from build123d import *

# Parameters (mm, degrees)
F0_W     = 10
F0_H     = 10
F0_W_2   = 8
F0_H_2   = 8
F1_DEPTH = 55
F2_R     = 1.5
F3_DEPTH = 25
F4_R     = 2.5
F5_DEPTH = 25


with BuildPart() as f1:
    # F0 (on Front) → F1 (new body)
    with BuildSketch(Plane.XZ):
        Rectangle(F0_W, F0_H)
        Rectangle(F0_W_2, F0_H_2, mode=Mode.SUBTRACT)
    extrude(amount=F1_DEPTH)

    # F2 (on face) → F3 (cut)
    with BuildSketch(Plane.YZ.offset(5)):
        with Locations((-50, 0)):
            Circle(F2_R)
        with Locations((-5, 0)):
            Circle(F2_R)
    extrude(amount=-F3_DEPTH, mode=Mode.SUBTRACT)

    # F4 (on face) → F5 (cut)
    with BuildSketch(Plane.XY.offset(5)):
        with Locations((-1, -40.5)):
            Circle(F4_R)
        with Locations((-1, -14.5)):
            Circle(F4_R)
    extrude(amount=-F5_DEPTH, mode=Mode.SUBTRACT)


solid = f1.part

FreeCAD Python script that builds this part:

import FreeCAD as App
import Part
import Sketcher

V = App.Vector
Q = App.Units.Quantity

doc = App.newDocument("Part")
params = doc.addObject("Spreadsheet::Sheet", "Params")
for row, (alias, value) in enumerate([
    ("sketch1_width", "10 mm"),
    ("sketch1_width2", "8 mm"),
    ("pad1_length", "55 mm"),
    ("sketch2_diameter", "3 mm"),
    ("pocket1_length", "25 mm"),
    ("sketch3_diameter", "5 mm"),
    ("pocket2_length", "25 mm"),
], start=1):
    params.set(f"A{row}", alias)
    params.set(f"B{row}", "=" + value)
    params.setAlias(f"B{row}", alias)

body = doc.addObject("PartDesign::Body", "Body")

# Sketch on XZ plane
sketch1 = body.newObject("Sketcher::SketchObject", "Sketch")
sketch1.AttachmentSupport = (doc.getObject("XZ_Plane"), [""])
sketch1.MapMode = "FlatFace"
sketch1.addGeometry([
    Part.LineSegment(V(-5, 5, 0), V(-5, -5, 0)),  # 0
    Part.LineSegment(V(-5, -5, 0), V(5, -5, 0)),  # 1
    Part.LineSegment(V(5, -5, 0), V(5, 5, 0)),  # 2
    Part.LineSegment(V(5, 5, 0), V(-5, 5, 0)),  # 3
    Part.LineSegment(V(4, -4, 0), V(-4, -4, 0)),  # 4
    Part.LineSegment(V(-4, -4, 0), V(-4, 4, 0)),  # 5
    Part.LineSegment(V(-4, 4, 0), V(4, 4, 0)),  # 6
    Part.LineSegment(V(4, 4, 0), V(4, -4, 0)),  # 7
], False)
sketch1.addConstraint([
    Sketcher.Constraint("Coincident", 0, 2, 1, 1),
    Sketcher.Constraint("Coincident", 1, 2, 2, 1),
    Sketcher.Constraint("Coincident", 2, 2, 3, 1),
    Sketcher.Constraint("Coincident", 3, 2, 0, 1),
    Sketcher.Constraint("Coincident", 4, 2, 5, 1),
    Sketcher.Constraint("Coincident", 5, 2, 6, 1),
    Sketcher.Constraint("Coincident", 6, 2, 7, 1),
    Sketcher.Constraint("Coincident", 7, 2, 4, 1),
    Sketcher.Constraint("Vertical", 0),
    Sketcher.Constraint("Horizontal", 1),
    Sketcher.Constraint("Vertical", 2),
    Sketcher.Constraint("Horizontal", 3),
    Sketcher.Constraint("Horizontal", 4),
    Sketcher.Constraint("Vertical", 5),
    Sketcher.Constraint("Horizontal", 6),
    Sketcher.Constraint("Vertical", 7),
    Sketcher.Constraint("Symmetric", 0, 2, 2, 2, -1, 1),
    Sketcher.Constraint("Symmetric", 4, 2, 6, 2, -1, 1),
    Sketcher.Constraint("Equal", 3, 0),
    Sketcher.Constraint("Equal", 6, 5),
    Sketcher.Constraint("DistanceX", 1, 1, 1, 2, Q("10 mm")),
    Sketcher.Constraint("DistanceX", 4, 2, 4, 1, Q("8 mm")),
])
sketch1.setExpression("Constraints[20]", "Params.sketch1_width")
sketch1.setExpression("Constraints[21]", "Params.sketch1_width2")
pad1 = body.newObject("PartDesign::Pad", "Pad")
pad1.Profile = sketch1
pad1.setExpression("Length", "Params.pad1_length")

# Sketch on YZ plane
sketch2 = body.newObject("Sketcher::SketchObject", "Sketch001")
sketch2.AttachmentSupport = (doc.getObject("YZ_Plane"), [""])
sketch2.MapMode = "FlatFace"
sketch2.AttachmentOffset = App.Placement(V(0, 0, 5), App.Rotation())
sketch2.addGeometry([
    Part.Circle(V(-50, 0, 0), V(0, 0, 1), 1.5),
    Part.Circle(V(-5, 0, 0), V(0, 0, 1), 1.5),
], False)
sketch2.addConstraint([
    Sketcher.Constraint("Equal", 0, 1),
    Sketcher.Constraint("PointOnObject", 0, 3, -1),
    Sketcher.Constraint("PointOnObject", 1, 3, -1),
    Sketcher.Constraint("Diameter", 0, Q("3 mm")),
    Sketcher.Constraint("DistanceX", 0, 3, -1, 1, Q("50 mm")),
    Sketcher.Constraint("DistanceX", 1, 3, -1, 1, Q("5 mm")),
])
sketch2.setExpression("Constraints[3]", "Params.sketch2_diameter")
pocket1 = body.newObject("PartDesign::Pocket", "Pocket")
pocket1.Profile = sketch2
pocket1.setExpression("Length", "Params.pocket1_length")

# Sketch on XY plane
sketch3 = body.newObject("Sketcher::SketchObject", "Sketch002")
sketch3.AttachmentSupport = (doc.getObject("XY_Plane"), [""])
sketch3.MapMode = "FlatFace"
sketch3.AttachmentOffset = App.Placement(V(0, 0, 5), App.Rotation())
sketch3.addGeometry([
    Part.Circle(V(-1, -40.5, 0), V(0, 0, 1), 2.5),
    Part.Circle(V(-1, -14.5, 0), V(0, 0, 1), 2.5),
], False)
sketch3.addConstraint([
    Sketcher.Constraint("Equal", 0, 1),
    Sketcher.Constraint("Vertical", 0, 3, 1, 3),
    Sketcher.Constraint("Diameter", 0, Q("5 mm")),
    Sketcher.Constraint("DistanceX", 0, 3, -1, 1, Q("1 mm")),
    Sketcher.Constraint("DistanceY", 0, 3, 1, 3, Q("26 mm")),
    Sketcher.Constraint("DistanceY", 0, 3, -1, 1, Q("40.5 mm")),
])
sketch3.setExpression("Constraints[2]", "Params.sketch3_diameter")
pocket2 = body.newObject("PartDesign::Pocket", "Pocket001")
pocket2.Profile = sketch3
pocket2.setExpression("Length", "Params.pocket2_length")

doc.recompute()
